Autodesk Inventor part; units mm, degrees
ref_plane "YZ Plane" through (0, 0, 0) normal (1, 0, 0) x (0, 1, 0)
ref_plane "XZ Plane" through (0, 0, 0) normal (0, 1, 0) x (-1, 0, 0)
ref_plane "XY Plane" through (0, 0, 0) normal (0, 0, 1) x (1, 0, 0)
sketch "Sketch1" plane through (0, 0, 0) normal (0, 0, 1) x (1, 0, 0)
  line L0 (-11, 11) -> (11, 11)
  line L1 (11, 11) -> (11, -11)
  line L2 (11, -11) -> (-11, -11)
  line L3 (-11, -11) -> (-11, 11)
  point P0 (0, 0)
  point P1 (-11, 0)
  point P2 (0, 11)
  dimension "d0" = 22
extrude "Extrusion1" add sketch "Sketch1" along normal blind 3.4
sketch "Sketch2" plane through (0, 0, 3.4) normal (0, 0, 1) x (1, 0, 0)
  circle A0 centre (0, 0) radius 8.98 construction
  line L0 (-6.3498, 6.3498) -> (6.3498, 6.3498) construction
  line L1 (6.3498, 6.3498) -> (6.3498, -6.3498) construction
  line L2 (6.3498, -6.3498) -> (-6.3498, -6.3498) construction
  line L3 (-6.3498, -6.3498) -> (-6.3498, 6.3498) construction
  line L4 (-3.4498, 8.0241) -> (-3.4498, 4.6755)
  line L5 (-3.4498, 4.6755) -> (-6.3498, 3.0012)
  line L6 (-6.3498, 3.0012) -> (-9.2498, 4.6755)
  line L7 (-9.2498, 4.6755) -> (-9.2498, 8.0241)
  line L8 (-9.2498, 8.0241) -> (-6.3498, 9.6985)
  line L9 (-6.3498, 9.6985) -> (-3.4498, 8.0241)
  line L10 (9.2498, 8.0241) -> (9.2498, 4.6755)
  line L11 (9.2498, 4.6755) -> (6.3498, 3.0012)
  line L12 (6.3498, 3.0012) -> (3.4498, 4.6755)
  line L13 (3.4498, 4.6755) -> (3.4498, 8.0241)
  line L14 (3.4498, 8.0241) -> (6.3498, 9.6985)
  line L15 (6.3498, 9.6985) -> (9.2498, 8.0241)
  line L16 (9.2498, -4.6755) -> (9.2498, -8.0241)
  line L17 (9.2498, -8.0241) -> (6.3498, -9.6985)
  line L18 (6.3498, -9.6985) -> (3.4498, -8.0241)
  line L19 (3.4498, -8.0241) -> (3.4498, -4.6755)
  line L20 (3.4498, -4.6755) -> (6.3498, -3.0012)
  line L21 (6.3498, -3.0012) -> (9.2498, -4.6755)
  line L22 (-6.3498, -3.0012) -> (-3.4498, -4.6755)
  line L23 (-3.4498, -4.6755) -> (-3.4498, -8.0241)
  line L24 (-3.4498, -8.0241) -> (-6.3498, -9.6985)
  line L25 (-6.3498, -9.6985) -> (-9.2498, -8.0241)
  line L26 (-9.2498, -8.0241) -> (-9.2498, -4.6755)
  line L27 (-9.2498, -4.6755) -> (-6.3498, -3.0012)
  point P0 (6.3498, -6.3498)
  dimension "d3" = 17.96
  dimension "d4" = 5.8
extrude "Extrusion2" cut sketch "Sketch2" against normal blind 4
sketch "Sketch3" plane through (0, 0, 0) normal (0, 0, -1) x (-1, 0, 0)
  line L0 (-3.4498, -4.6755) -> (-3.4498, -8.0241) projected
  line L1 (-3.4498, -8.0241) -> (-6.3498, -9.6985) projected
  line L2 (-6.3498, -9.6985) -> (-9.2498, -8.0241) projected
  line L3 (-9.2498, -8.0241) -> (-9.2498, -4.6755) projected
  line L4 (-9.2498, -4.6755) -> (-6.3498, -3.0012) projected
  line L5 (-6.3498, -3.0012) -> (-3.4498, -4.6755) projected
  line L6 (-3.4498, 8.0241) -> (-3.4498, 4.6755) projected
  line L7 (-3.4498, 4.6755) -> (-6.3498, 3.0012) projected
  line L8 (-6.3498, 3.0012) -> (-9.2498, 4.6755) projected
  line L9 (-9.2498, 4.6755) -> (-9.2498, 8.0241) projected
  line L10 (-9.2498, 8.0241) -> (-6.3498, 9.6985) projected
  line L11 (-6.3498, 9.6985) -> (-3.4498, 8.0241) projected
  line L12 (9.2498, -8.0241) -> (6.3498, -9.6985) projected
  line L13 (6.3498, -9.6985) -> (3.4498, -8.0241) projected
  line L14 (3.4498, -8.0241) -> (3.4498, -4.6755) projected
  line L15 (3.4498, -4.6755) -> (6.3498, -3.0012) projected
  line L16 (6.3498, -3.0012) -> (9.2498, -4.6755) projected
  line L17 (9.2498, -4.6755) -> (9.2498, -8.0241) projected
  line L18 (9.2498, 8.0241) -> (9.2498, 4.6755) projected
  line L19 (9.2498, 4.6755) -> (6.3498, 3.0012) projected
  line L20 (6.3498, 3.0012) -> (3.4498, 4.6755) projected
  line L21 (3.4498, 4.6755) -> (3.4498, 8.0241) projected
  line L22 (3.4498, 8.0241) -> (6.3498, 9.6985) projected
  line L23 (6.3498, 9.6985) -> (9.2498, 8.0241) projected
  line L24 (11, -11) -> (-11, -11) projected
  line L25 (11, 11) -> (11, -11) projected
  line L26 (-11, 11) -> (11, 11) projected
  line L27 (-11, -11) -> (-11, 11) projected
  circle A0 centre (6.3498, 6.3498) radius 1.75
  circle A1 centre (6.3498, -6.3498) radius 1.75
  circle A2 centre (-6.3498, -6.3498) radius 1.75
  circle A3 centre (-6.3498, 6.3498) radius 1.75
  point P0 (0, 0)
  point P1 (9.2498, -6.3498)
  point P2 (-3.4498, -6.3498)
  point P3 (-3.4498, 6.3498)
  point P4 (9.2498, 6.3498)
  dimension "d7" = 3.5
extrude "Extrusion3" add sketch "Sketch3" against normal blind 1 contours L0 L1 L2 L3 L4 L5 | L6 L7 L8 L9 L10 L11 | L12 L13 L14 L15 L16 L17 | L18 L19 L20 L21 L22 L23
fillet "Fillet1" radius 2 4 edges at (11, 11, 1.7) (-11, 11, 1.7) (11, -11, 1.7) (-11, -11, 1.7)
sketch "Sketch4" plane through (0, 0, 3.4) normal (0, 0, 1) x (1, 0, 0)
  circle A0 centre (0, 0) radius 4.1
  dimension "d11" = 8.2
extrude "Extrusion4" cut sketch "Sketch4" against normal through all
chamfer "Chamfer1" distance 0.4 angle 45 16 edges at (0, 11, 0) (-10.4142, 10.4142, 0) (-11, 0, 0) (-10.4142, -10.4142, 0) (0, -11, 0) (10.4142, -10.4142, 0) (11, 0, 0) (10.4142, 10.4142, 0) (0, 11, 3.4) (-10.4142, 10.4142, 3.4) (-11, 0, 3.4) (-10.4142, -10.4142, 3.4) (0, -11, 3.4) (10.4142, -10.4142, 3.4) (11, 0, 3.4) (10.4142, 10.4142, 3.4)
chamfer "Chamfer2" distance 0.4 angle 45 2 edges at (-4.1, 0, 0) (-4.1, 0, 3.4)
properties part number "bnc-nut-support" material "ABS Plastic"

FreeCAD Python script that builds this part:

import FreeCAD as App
import Part
import Sketcher
Q = App.Units.Quantity


def edges_at(feature, points):
    """Names of the edges that pass closest to the given points."""
    edges = feature.Shape.Edges
    near = lambda p: min(range(len(edges)), key=lambda i: edges[i].distToShape(Part.Vertex(*p))[0])
    return sorted({f"Edge{near(p) + 1}" for p in points})

doc = App.newDocument("Part")
body = doc.addObject("PartDesign::Body", "Body")

# Sketch on XY plane
sketch1 = doc.addObject("Sketcher::SketchObject", "Sketch")
body.addObject(sketch1)
sketch1.AttachmentSupport = (doc.XY_Plane, [""])
sketch1.MapMode = "FlatFace"
sketch1.addGeometry([
    Part.LineSegment(App.Vector(11, 11, 0), App.Vector(-11, 11, 0)),
    Part.LineSegment(App.Vector(-11, 11, 0), App.Vector(-11, -11, 0)),
    Part.LineSegment(App.Vector(-11, -11, 0), App.Vector(11, -11, 0)),
    Part.LineSegment(App.Vector(11, -11, 0), App.Vector(11, 11, 0)),
], False)
sketch1.addConstraint([
    Sketcher.Constraint("Coincident", 0, 2, 1, 1),
    Sketcher.Constraint("Coincident", 1, 2, 2, 1),
    Sketcher.Constraint("Coincident", 2, 2, 3, 1),
    Sketcher.Constraint("Coincident", 3, 2, 0, 1),
    Sketcher.Constraint("Horizontal", 0),
    Sketcher.Constraint("Vertical", 1),
    Sketcher.Constraint("Horizontal", 2),
    Sketcher.Constraint("Vertical", 3),
    Sketcher.Constraint("Symmetric", 0, 2, 2, 2, -1, 1),
    Sketcher.Constraint("Equal", 2, 1),
    Sketcher.Constraint("DistanceX", 0, 2, 0, 1, Q("22 mm")),
])
pad1 = doc.addObject("PartDesign::Pad", "Pad")
body.addObject(pad1)
pad1.Profile = sketch1
pad1.Length = 3.4

# Sketch on XY plane
sketch2 = doc.addObject("Sketcher::SketchObject", "Sketch001")
body.addObject(sketch2)
sketch2.AttachmentSupport = (doc.XY_Plane, [""])
sketch2.MapMode = "FlatFace"
sketch2.AttachmentOffset = App.Placement(App.Vector(0, 0, 3.4), App.Rotation())
sketch2.addGeometry([
    Part.LineSegment(App.Vector(-3.4, 4.7, 0), App.Vector(-3.4, 8, 0)),  # 0
    Part.LineSegment(App.Vector(-3.4, 8, 0), App.Vector(-6.3, 9.7, 0)),  # 1
    Part.LineSegment(App.Vector(-6.3, 9.7, 0), App.Vector(-9.2, 8, 0)),  # 2
    Part.LineSegment(App.Vector(-9.2, 8, 0), App.Vector(-9.2, 4.7, 0)),  # 3
    Part.LineSegment(App.Vector(-9.2, 4.7, 0), App.Vector(-6.3, 3, 0)),  # 4
    Part.LineSegment(App.Vector(-6.3, 3, 0), App.Vector(-3.4, 4.7, 0)),  # 5
    Part.LineSegment(App.Vector(9.2, 4.7, 0), App.Vector(9.2, 8, 0)),  # 6
    Part.LineSegment(App.Vector(9.2, 8, 0), App.Vector(6.3, 9.7, 0)),  # 7
    Part.LineSegment(App.Vector(6.3, 9.7, 0), App.Vector(3.4, 8, 0)),  # 8
    Part.LineSegment(App.Vector(3.4, 8, 0), App.Vector(3.4, 4.7, 0)),  # 9
    Part.LineSegment(App.Vector(3.4, 4.7, 0), App.Vector(6.3, 3, 0)),  # 10
    Part.LineSegment(App.Vector(6.3, 3, 0), App.Vector(9.2, 4.7, 0)),  # 11
    Part.LineSegment(App.Vector(9.2, -8, 0), App.Vector(9.2, -4.7, 0)),  # 12
    Part.LineSegment(App.Vector(9.2, -4.7, 0), App.Vector(6.3, -3, 0)),  # 13
    Part.LineSegment(App.Vector(6.3, -3, 0), App.Vector(3.4, -4.7, 0)),  # 14
    Part.LineSegment(App.Vector(3.4, -4.7, 0), App.Vector(3.4, -8, 0)),  # 15
    Part.LineSegment(App.Vector(3.4, -8, 0), App.Vector(6.3, -9.7, 0)),  # 16
    Part.LineSegment(App.Vector(6.3, -9.7, 0), App.Vector(9.2, -8, 0)),  # 17
    Part.LineSegment(App.Vector(-3.4, -4.7, 0), App.Vector(-6.3, -3, 0)),  # 18
    Part.LineSegment(App.Vector(-6.3, -3, 0), App.Vector(-9.2, -4.7, 0)),  # 19
    Part.LineSegment(App.Vector(-9.2, -4.7, 0), App.Vector(-9.2, -8, 0)),  # 20
    Part.LineSegment(App.Vector(-9.2, -8, 0), App.Vector(-6.3, -9.7, 0)),  # 21
    Part.LineSegment(App.Vector(-6.3, -9.7, 0), App.Vector(-3.4, -8, 0)),  # 22
    Part.LineSegment(App.Vector(-3.4, -8, 0), App.Vector(-3.4, -4.7, 0)),  # 23
], False)
sketch2.addConstraint([
    Sketcher.Constraint("Coincident", 0, 2, 1, 1),
    Sketcher.Constraint("Coincident", 1, 2, 2, 1),
    Sketcher.Constraint("Coincident", 2, 2, 3, 1),
    Sketcher.Constraint("Coincident", 3, 2, 4, 1),
    Sketcher.Constraint("Coincident", 4, 2, 5, 1),
    Sketcher.Constraint("Coincident", 5, 2, 0, 1),
    Sketcher.Constraint("Coincident", 6, 2, 7, 1),
    Sketcher.Constraint("Coincident", 7, 2, 8, 1),
    Sketcher.Constraint("Coincident", 8, 2, 9, 1),
    Sketcher.Constraint("Coincident", 9, 2, 10, 1),
    Sketcher.Constraint("Coincident", 10, 2, 11, 1),
    Sketcher.Constraint("Coincident", 11, 2, 6, 1),
    Sketcher.Constraint("Coincident", 12, 2, 13, 1),
    Sketcher.Constraint("Coincident", 13, 2, 14, 1),
    Sketcher.Constraint("Coincident", 14, 2, 15, 1),
    Sketcher.Constraint("Coincident", 15, 2, 16, 1),
    Sketcher.Constraint("Coincident", 16, 2, 17, 1),
    Sketcher.Constraint("Coincident", 17, 2, 12, 1),
    Sketcher.Constraint("Coincident", 18, 2, 19, 1),
    Sketcher.Constraint("Coincident", 19, 2, 20, 1),
    Sketcher.Constraint("Coincident", 20, 2, 21, 1),
    Sketcher.Constraint("Coincident", 21, 2, 22, 1),
    Sketcher.Constraint("Coincident", 22, 2, 23, 1),
    Sketcher.Constraint("Coincident", 23, 2, 18, 1),
    Sketcher.Constraint("Vertical", 0),
    Sketcher.Constraint("Vertical", 3),
    Sketcher.Constraint("Vertical", 6),
    Sketcher.Constraint("Vertical", 9),
    Sketcher.Constraint("Vertical", 12),
    Sketcher.Constraint("Vertical", 15),
    Sketcher.Constraint("Vertical", 20),
    Sketcher.Constraint("Vertical", 23),
    Sketcher.Constraint("Symmetric", 3, 2, 12, 2, -1, 1),
    Sketcher.Constraint("Symmetric", 4, 2, 13, 2, -1, 1),
    Sketcher.Constraint("Symmetric", 5, 2, 14, 2, -1, 1),
    Sketcher.Constraint("Symmetric", 1, 2, 16, 2, -1, 1),
    Sketcher.Constraint("Symmetric", 10, 2, 18, 2, -1, 1),
    Sketcher.Constraint("Symmetric", 11, 2, 19, 2, -1, 1),
    Sketcher.Constraint("Symmetric", 7, 2, 21, 2, -1, 1),
    Sketcher.Constraint("Symmetric", 8, 2, 22, 2, -1, 1),
    Sketcher.Constraint("Symmetric", 2, 2, 6, 2, -2),
    Sketcher.Constraint("Symmetric", 1, 2, 7, 2, -2),
    Sketcher.Constraint("Symmetric", 0, 2, 8, 2, -2),
    Sketcher.Constraint("Symmetric", 4, 2, 10, 2, -2),
    Sketcher.Constraint("Parallel", 1, 4),
    Sketcher.Constraint("Parallel", 2, 5),
    Sketcher.Constraint("Parallel", 4, 7),
    Sketcher.Constraint("Parallel", 7, 10),
    Sketcher.Constraint("Parallel", 8, 11),
    Sketcher.Constraint("Parallel", 13, 16),
    Sketcher.Constraint("Parallel", 14, 17),
    Sketcher.Constraint("Parallel", 16, 18),
    Sketcher.Constraint("Parallel", 18, 21),
    Sketcher.Constraint("Horizontal", 0, 2, 2, 2),
    Sketcher.Constraint("Horizontal", 3, 2, 5, 2),
    Sketcher.Constraint("DistanceX", 2, 2, 0, 2, Q("5.8 mm")),
    Sketcher.Constraint("Angle", 4, Q("-29.9998 deg")),
    Sketcher.Constraint("DistanceY", 0, 1, 0, 2, Q("3.3486 mm")),
    Sketcher.Constraint("DistanceY", -1, 1, 0, 2, Q("8.024 mm")),
    Sketcher.Constraint("DistanceX", 0, 2, -1, 1, Q("3.4498 mm")),
])
pocket1 = doc.addObject("PartDesign::Pocket", "Pocket")
body.addObject(pocket1)
pocket1.Profile = sketch2
pocket1.Length = 4

# Sketch on XY plane
sketch3 = doc.addObject("Sketcher::SketchObject", "Sketch002")
body.addObject(sketch3)
sketch3.AttachmentSupport = (doc.XY_Plane, [""])
sketch3.MapMode = "FlatFace"
sketch3.addGeometry([
    Part.LineSegment(App.Vector(3.4, -8, 0), App.Vector(3.4, -4.7, 0)),  # 0
    Part.LineSegment(App.Vector(3.4, -4.7, 0), App.Vector(6.3, -3, 0)),  # 1
    Part.LineSegment(App.Vector(6.3, -3, 0), App.Vector(9.2, -4.7, 0)),  # 2
    Part.LineSegment(App.Vector(9.2, -4.7, 0), App.Vector(9.2, -8, 0)),  # 3
    Part.LineSegment(App.Vector(9.2, -8, 0), App.Vector(6.3, -9.7, 0)),  # 4
    Part.LineSegment(App.Vector(6.3, -9.7, 0), App.Vector(3.4, -8, 0)),  # 5
    Part.Circle(App.Vector(6.3, -6.3, 0), App.Vector(0, 0, 1), 1.8),  # 6
    Part.LineSegment(App.Vector(3.4, 4.7, 0), App.Vector(3.4, 8, 0)),  # 7
    Part.LineSegment(App.Vector(3.4, 8, 0), App.Vector(6.3, 9.7, 0)),  # 8
    Part.LineSegment(App.Vector(6.3, 9.7, 0), App.Vector(9.2, 8, 0)),  # 9
    Part.LineSegment(App.Vector(9.2, 8, 0), App.Vector(9.2, 4.7, 0)),  # 10
    Part.LineSegment(App.Vector(9.2, 4.7, 0), App.Vector(6.3, 3, 0)),  # 11
    Part.LineSegment(App.Vector(6.3, 3, 0), App.Vector(3.4, 4.7, 0)),  # 12
    Part.Circle(App.Vector(6.3, 6.3, 0), App.Vector(0, 0, 1), 1.8),  # 13
    Part.LineSegment(App.Vector(-6.3, -9.7, 0), App.Vector(-9.2, -8, 0)),  # 14
    Part.LineSegment(App.Vector(-9.2, -8, 0), App.Vector(-9.2, -4.7, 0)),  # 15
    Part.LineSegment(App.Vector(-9.2, -4.7, 0), App.Vector(-6.3, -3, 0)),  # 16
    Part.LineSegment(App.Vector(-6.3, -3, 0), App.Vector(-3.4, -4.7, 0)),  # 17
    Part.LineSegment(App.Vector(-3.4, -4.7, 0), App.Vector(-3.4, -8, 0)),  # 18
    Part.LineSegment(App.Vector(-3.4, -8, 0), App.Vector(-6.3, -9.7, 0)),  # 19
    Part.Circle(App.Vector(-6.3, -6.3, 0), App.Vector(0, 0, 1), 1.8),  # 20
    Part.LineSegment(App.Vector(-9.2, 4.7, 0), App.Vector(-9.2, 8, 0)),  # 21
    Part.LineSegment(App.Vector(-9.2, 8, 0), App.Vector(-6.3, 9.7, 0)),  # 22
    Part.LineSegment(App.Vector(-6.3, 9.7, 0), App.Vector(-3.4, 8, 0)),  # 23
    Part.LineSegment(App.Vector(-3.4, 8, 0), App.Vector(-3.4, 4.7, 0)),  # 24
    Part.LineSegment(App.Vector(-3.4, 4.7, 0), App.Vector(-6.3, 3, 0)),  # 25
    Part.LineSegment(App.Vector(-6.3, 3, 0), App.Vector(-9.2, 4.7, 0)),  # 26
    Part.Circle(App.Vector(-6.3, 6.3, 0), App.Vector(0, 0, 1), 1.8),  # 27
], False)
sketch3.addConstraint([
    Sketcher.Constraint("Coincident", 0, 2, 1, 1),
    Sketcher.Constraint("Coincident", 1, 2, 2, 1),
    Sketcher.Constraint("Coincident", 2, 2, 3, 1),
    Sketcher.Constraint("Coincident", 3, 2, 4, 1),
    Sketcher.Constraint("Coincident", 4, 2, 5, 1),
    Sketcher.Constraint("Coincident", 5, 2, 0, 1),
    Sketcher.Constraint("Coincident", 7, 2, 8, 1),
    Sketcher.Constraint("Coincident", 8, 2, 9, 1),
    Sketcher.Constraint("Coincident", 9, 2, 10, 1),
    Sketcher.Constraint("Coincident", 10, 2, 11, 1),
    Sketcher.Constraint("Coincident", 11, 2, 12, 1),
    Sketcher.Constraint("Coincident", 12, 2, 7, 1),
    Sketcher.Constraint("Coincident", 14, 2, 15, 1),
    Sketcher.Constraint("Coincident", 15, 2, 16, 1),
    Sketcher.Constraint("Coincident", 16, 2, 17, 1),
    Sketcher.Constraint("Coincident", 17, 2, 18, 1),
    Sketcher.Constraint("Coincident", 18, 2, 19, 1),
    Sketcher.Constraint("Coincident", 19, 2, 14, 1),
    Sketcher.Constraint("Coincident", 21, 2, 22, 1),
    Sketcher.Constraint("Coincident", 22, 2, 23, 1),
    Sketcher.Constraint("Coincident", 23, 2, 24, 1),
    Sketcher.Constraint("Coincident", 24, 2, 25, 1),
    Sketcher.Constraint("Coincident", 25, 2, 26, 1),
    Sketcher.Constraint("Coincident", 26, 2, 21, 1),
    Sketcher.Constraint("Vertical", 0),
    Sketcher.Constraint("Vertical", 3),
    Sketcher.Constraint("Vertical", 7),
    Sketcher.Constraint("Vertical", 10),
    Sketcher.Constraint("Vertical", 15),
    Sketcher.Constraint("Vertical", 18),
    Sketcher.Constraint("Vertical", 21),
    Sketcher.Constraint("Vertical", 24),
    Sketcher.Constraint("Equal", 6, 13),
    Sketcher.Constraint("Equal", 13, 20),
    Sketcher.Constraint("Equal", 20, 27),
    Sketcher.Constraint("Symmetric", 13, 3, 20, 3, -1, 1),
    Sketcher.Constraint("Symmetric", 6, 3, 27, 3, -1, 1),
    Sketcher.Constraint("Symmetric", 9, 2, 14, 2, -1, 1),
    Sketcher.Constraint("Symmetric", 11, 2, 16, 2, -1, 1),
    Sketcher.Constraint("Symmetric", 12, 2, 17, 2, -1, 1),
    Sketcher.Constraint("Symmetric", 8, 2, 19, 2, -1, 1),
    Sketcher.Constraint("Symmetric", 3, 2, 21, 2, -1, 1),
    Sketcher.Constraint("Symmetric", 4, 2, 22, 2, -1, 1),
    Sketcher.Constraint("Symmetric", 5, 2, 23, 2, -1, 1),
    Sketcher.Constraint("Symmetric", 1, 2, 25, 2, -1, 1),
    Sketcher.Constraint("Symmetric", 6, 3, 20, 3, -2),
    Sketcher.Constraint("Symmetric", 3, 2, 14, 2, -2),
    Sketcher.Constraint("Symmetric", 1, 2, 16, 2, -2),
    Sketcher.Constraint("Symmetric", 0, 2, 17, 2, -2),
    Sketcher.Constraint("Symmetric", 4, 2, 19, 2, -2),
    Sketcher.Constraint("Parallel", 1, 4),
    Sketcher.Constraint("Parallel", 2, 5),
    Sketcher.Constraint("Parallel", 4, 8),
    Sketcher.Constraint("Parallel", 5, 9),
    Sketcher.Constraint("Parallel", 8, 11),
    Sketcher.Constraint("Parallel", 11, 16),
    Sketcher.Constraint("Parallel", 16, 19),
    Sketcher.Constraint("Parallel", 22, 25),
    Sketcher.Constraint("Parallel", 23, 26),
    Sketcher.Constraint("Horizontal", 0, 2, 2, 2),
    Sketcher.Constraint("Horizontal", 3, 2, 5, 2),
    Sketcher.Constraint("Vertical", 13, 3, 1, 2),
    Sketcher.Constraint("Diameter", 6, Q("3.5 mm")),
    Sketcher.Constraint("Angle", 1, Q("29.9998 deg")),
    Sketcher.Constraint("DistanceX", 0, 2, 6, 3, Q("2.9 mm")),
    Sketcher.Constraint("DistanceY", 0, 1, 0, 2, Q("3.3486 mm")),
    Sketcher.Constraint("DistanceY", 3, 2, -1, 1, Q("8.024 mm")),
    Sketcher.Constraint("DistanceY", 1, 2, 13, 3, Q("9.351 mm")),
    Sketcher.Constraint("DistanceX", -1, 1, 6, 3, Q("6.3498 mm")),
])
pad2 = doc.addObject("PartDesign::Pad", "Pad001")
body.addObject(pad2)
pad2.Profile = sketch3
pad2.Length = 1
doc.recompute()

fillet = doc.addObject("PartDesign::Fillet", "Fillet")
body.addObject(fillet)
fillet.Base = (pad2, edges_at(pad2, [
    (11, 11, 1.7),
    (-11, 11, 1.7),
    (11, -11, 1.7),
    (-11, -11, 1.7),
]))
fillet.Radius = 2

# Sketch on XY plane
sketch4 = doc.addObject("Sketcher::SketchObject", "Sketch003")
body.addObject(sketch4)
sketch4.AttachmentSupport = (doc.XY_Plane, [""])
sketch4.MapMode = "FlatFace"
sketch4.AttachmentOffset = App.Placement(App.Vector(0, 0, 3.4), App.Rotation())
sketch4.addGeometry(Part.Circle(App.Vector(0, 0, 0), App.Vector(0, 0, 1), 4.1), False)
sketch4.addConstraint([
    Sketcher.Constraint("Coincident", 0, 3, -1, 1),
    Sketcher.Constraint("Diameter", 0, Q("8.2 mm")),
])
pocket2 = doc.addObject("PartDesign::Pocket", "Pocket001")
body.addObject(pocket2)
pocket2.Profile = sketch4
pocket2.Type = "ThroughAll"
doc.recompute()

chamfer = doc.addObject("PartDesign::Chamfer", "Chamfer")
body.addObject(chamfer)
chamfer.Base = (pocket2, edges_at(pocket2, [
    (0, 11, 0),
    (-10.414, 10.414, 0),
    (-11, 0, 0),
    (-10.414, -10.414, 0),
    (0, -11, 0),
    (10.414, -10.414, 0),
    (11, 0, 0),
    (10.414, 10.414, 0),
    (0, 11, 3.4),
    (-10.414, 10.414, 3.4),
    (-11, 0, 3.4),
    (-10.414, -10.414, 3.4),
    (0, -11, 3.4),
    (10.414, -10.414, 3.4),
    (11, 0, 3.4),
    (10.414, 10.414, 3.4),
]))
chamfer.Size = 0.4
doc.recompute()

chamfer2 = doc.addObject("PartDesign::Chamfer", "Chamfer001")
body.addObject(chamfer2)
chamfer2.Base = (chamfer, edges_at(chamfer, [(-4.1, 0, 0), (-4.1, 0, 3.4)]))
chamfer2.Size = 0.4

doc.recompute()
